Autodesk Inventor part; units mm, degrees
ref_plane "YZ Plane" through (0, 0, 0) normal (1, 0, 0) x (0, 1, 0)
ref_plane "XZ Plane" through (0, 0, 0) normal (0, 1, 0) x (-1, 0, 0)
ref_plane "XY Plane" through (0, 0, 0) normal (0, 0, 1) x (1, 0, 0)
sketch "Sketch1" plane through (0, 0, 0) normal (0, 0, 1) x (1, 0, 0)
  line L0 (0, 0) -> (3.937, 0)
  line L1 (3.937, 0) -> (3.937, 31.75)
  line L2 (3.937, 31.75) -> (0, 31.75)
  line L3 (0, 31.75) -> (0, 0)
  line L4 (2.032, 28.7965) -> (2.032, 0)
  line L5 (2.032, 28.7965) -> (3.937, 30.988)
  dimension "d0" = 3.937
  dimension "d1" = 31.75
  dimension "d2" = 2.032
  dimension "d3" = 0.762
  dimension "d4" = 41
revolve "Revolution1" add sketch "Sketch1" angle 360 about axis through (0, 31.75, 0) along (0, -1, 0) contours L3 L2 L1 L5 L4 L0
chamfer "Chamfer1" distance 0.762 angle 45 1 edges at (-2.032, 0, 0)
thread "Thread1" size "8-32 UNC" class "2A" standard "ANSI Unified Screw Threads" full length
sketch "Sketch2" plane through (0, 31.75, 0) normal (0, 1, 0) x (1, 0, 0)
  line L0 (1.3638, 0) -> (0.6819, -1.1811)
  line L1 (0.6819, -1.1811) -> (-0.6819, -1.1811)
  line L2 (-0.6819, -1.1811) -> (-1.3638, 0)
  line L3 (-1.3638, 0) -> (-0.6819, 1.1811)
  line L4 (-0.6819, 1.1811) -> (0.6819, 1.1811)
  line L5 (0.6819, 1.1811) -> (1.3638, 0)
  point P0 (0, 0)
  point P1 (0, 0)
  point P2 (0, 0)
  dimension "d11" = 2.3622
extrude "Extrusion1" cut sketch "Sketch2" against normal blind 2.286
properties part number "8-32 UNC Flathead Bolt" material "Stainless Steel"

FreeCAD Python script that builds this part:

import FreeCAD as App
import Part
import Sketcher

V = App.Vector
Q = App.Units.Quantity


def edges_at(feature, points):
    """Names of the edges that pass closest to the given points."""
    edges = feature.Shape.Edges
    near = lambda p: min(range(len(edges)), key=lambda i: edges[i].distToShape(Part.Vertex(*p))[0])
    return sorted({f"Edge{near(p) + 1}" for p in points})


def add_polygon(sketch, points):
    """Adds a closed chain of lines whose ends are joined by coincident constraints."""
    first, n = sketch.GeometryCount, len(points)
    for a, b in zip(points, points[1:] + points[:1]):
        sketch.addGeometry(Part.LineSegment(App.Vector(*a, 0), App.Vector(*b, 0)), False)
    for i in range(n):
        sketch.addConstraint(Sketcher.Constraint("Coincident", first + i, 2, first + (i + 1) % n, 1))

doc = App.newDocument("Part")
body = doc.addObject("PartDesign::Body", "Body")

# Sketch on XY plane
sketch1 = doc.addObject("Sketcher::SketchObject", "Sketch")
body.addObject(sketch1)
sketch1.AttachmentSupport = (doc.XY_Plane, [""])
sketch1.MapMode = "FlatFace"
add_polygon(sketch1, [(0, 31.8), (0, 0), (2, 0), (2, 28.8), (3.9, 31), (3.9, 31.8)])  # lines 0-5
sketch1.addConstraint([
    Sketcher.Constraint("Vertical", 0),
    Sketcher.Constraint("Horizontal", 1),
    Sketcher.Constraint("Vertical", 2),
    Sketcher.Constraint("Vertical", 4),
    Sketcher.Constraint("Horizontal", 5),
    Sketcher.Constraint("Coincident", 0, 2, -1, 1),
    Sketcher.Constraint("DistanceX", 1, 1, 1, 2, Q("0.08 in")),
    Sketcher.Constraint("DistanceY", 0, 2, 0, 1, Q("1.25 in")),
    Sketcher.Constraint("DistanceY", 4, 1, 4, 2, Q("0.03 in")),
    Sketcher.Constraint("DistanceX", 5, 2, 5, 1, Q("0.155 in")),
    Sketcher.Constraint("Angle", 3, Q("49.0006 deg")),
])
revolution = doc.addObject("PartDesign::Revolution", "Revolution")
body.addObject(revolution)
revolution.Profile = sketch1
revolution.ReferenceAxis = (sketch1, ["V_Axis"])
revolution.Angle = 360
doc.recompute()

chamfer = doc.addObject("PartDesign::Chamfer", "Chamfer")
body.addObject(chamfer)
chamfer.Base = (revolution, edges_at(revolution, [(-2.032, 0, 0)]))
chamfer.Size = Q("0.03 in")

# Sketch on XZ plane
sketch2 = doc.addObject("Sketcher::SketchObject", "Sketch001")
body.addObject(sketch2)
sketch2.AttachmentSupport = (doc.XZ_Plane, [""])
sketch2.MapMode = "FlatFace"
sketch2.AttachmentOffset = App.Placement(V(0, 0, -1.25 * 25.4), App.Rotation())
add_polygon(sketch2, [(0.7, 1.2), (1.4, 0), (0.7, -1.2), (-0.7, -1.2), (-1.4, 0), (-0.7, 1.2)])  # lines 0-5
sketch2.addConstraint([
    Sketcher.Constraint("Horizontal", 2),
    Sketcher.Constraint("Horizontal", 5),
    Sketcher.Constraint("Symmetric", 0, 2, 3, 2, -1, 1),
    Sketcher.Constraint("Symmetric", 1, 2, 4, 2, -1, 1),
    Sketcher.Constraint("PointOnObject", 0, 2, -1),
    Sketcher.Constraint("Parallel", 0, 3),
    Sketcher.Constraint("Vertical", 2, 2, 4, 2),
    Sketcher.Constraint("Angle", 0, Q("-60.0003 deg")),
    Sketcher.Constraint("DistanceY", 2, 2, 4, 2, Q("0.093 in")),
    Sketcher.Constraint("DistanceX", 2, 2, 2, 1, Q("0.0537 in")),
])
pocket1 = doc.addObject("PartDesign::Pocket", "Pocket")
body.addObject(pocket1)
pocket1.Profile = sketch2
pocket1.Length = Q("0.09 in")
pocket1.Reversed = True

doc.recompute()
